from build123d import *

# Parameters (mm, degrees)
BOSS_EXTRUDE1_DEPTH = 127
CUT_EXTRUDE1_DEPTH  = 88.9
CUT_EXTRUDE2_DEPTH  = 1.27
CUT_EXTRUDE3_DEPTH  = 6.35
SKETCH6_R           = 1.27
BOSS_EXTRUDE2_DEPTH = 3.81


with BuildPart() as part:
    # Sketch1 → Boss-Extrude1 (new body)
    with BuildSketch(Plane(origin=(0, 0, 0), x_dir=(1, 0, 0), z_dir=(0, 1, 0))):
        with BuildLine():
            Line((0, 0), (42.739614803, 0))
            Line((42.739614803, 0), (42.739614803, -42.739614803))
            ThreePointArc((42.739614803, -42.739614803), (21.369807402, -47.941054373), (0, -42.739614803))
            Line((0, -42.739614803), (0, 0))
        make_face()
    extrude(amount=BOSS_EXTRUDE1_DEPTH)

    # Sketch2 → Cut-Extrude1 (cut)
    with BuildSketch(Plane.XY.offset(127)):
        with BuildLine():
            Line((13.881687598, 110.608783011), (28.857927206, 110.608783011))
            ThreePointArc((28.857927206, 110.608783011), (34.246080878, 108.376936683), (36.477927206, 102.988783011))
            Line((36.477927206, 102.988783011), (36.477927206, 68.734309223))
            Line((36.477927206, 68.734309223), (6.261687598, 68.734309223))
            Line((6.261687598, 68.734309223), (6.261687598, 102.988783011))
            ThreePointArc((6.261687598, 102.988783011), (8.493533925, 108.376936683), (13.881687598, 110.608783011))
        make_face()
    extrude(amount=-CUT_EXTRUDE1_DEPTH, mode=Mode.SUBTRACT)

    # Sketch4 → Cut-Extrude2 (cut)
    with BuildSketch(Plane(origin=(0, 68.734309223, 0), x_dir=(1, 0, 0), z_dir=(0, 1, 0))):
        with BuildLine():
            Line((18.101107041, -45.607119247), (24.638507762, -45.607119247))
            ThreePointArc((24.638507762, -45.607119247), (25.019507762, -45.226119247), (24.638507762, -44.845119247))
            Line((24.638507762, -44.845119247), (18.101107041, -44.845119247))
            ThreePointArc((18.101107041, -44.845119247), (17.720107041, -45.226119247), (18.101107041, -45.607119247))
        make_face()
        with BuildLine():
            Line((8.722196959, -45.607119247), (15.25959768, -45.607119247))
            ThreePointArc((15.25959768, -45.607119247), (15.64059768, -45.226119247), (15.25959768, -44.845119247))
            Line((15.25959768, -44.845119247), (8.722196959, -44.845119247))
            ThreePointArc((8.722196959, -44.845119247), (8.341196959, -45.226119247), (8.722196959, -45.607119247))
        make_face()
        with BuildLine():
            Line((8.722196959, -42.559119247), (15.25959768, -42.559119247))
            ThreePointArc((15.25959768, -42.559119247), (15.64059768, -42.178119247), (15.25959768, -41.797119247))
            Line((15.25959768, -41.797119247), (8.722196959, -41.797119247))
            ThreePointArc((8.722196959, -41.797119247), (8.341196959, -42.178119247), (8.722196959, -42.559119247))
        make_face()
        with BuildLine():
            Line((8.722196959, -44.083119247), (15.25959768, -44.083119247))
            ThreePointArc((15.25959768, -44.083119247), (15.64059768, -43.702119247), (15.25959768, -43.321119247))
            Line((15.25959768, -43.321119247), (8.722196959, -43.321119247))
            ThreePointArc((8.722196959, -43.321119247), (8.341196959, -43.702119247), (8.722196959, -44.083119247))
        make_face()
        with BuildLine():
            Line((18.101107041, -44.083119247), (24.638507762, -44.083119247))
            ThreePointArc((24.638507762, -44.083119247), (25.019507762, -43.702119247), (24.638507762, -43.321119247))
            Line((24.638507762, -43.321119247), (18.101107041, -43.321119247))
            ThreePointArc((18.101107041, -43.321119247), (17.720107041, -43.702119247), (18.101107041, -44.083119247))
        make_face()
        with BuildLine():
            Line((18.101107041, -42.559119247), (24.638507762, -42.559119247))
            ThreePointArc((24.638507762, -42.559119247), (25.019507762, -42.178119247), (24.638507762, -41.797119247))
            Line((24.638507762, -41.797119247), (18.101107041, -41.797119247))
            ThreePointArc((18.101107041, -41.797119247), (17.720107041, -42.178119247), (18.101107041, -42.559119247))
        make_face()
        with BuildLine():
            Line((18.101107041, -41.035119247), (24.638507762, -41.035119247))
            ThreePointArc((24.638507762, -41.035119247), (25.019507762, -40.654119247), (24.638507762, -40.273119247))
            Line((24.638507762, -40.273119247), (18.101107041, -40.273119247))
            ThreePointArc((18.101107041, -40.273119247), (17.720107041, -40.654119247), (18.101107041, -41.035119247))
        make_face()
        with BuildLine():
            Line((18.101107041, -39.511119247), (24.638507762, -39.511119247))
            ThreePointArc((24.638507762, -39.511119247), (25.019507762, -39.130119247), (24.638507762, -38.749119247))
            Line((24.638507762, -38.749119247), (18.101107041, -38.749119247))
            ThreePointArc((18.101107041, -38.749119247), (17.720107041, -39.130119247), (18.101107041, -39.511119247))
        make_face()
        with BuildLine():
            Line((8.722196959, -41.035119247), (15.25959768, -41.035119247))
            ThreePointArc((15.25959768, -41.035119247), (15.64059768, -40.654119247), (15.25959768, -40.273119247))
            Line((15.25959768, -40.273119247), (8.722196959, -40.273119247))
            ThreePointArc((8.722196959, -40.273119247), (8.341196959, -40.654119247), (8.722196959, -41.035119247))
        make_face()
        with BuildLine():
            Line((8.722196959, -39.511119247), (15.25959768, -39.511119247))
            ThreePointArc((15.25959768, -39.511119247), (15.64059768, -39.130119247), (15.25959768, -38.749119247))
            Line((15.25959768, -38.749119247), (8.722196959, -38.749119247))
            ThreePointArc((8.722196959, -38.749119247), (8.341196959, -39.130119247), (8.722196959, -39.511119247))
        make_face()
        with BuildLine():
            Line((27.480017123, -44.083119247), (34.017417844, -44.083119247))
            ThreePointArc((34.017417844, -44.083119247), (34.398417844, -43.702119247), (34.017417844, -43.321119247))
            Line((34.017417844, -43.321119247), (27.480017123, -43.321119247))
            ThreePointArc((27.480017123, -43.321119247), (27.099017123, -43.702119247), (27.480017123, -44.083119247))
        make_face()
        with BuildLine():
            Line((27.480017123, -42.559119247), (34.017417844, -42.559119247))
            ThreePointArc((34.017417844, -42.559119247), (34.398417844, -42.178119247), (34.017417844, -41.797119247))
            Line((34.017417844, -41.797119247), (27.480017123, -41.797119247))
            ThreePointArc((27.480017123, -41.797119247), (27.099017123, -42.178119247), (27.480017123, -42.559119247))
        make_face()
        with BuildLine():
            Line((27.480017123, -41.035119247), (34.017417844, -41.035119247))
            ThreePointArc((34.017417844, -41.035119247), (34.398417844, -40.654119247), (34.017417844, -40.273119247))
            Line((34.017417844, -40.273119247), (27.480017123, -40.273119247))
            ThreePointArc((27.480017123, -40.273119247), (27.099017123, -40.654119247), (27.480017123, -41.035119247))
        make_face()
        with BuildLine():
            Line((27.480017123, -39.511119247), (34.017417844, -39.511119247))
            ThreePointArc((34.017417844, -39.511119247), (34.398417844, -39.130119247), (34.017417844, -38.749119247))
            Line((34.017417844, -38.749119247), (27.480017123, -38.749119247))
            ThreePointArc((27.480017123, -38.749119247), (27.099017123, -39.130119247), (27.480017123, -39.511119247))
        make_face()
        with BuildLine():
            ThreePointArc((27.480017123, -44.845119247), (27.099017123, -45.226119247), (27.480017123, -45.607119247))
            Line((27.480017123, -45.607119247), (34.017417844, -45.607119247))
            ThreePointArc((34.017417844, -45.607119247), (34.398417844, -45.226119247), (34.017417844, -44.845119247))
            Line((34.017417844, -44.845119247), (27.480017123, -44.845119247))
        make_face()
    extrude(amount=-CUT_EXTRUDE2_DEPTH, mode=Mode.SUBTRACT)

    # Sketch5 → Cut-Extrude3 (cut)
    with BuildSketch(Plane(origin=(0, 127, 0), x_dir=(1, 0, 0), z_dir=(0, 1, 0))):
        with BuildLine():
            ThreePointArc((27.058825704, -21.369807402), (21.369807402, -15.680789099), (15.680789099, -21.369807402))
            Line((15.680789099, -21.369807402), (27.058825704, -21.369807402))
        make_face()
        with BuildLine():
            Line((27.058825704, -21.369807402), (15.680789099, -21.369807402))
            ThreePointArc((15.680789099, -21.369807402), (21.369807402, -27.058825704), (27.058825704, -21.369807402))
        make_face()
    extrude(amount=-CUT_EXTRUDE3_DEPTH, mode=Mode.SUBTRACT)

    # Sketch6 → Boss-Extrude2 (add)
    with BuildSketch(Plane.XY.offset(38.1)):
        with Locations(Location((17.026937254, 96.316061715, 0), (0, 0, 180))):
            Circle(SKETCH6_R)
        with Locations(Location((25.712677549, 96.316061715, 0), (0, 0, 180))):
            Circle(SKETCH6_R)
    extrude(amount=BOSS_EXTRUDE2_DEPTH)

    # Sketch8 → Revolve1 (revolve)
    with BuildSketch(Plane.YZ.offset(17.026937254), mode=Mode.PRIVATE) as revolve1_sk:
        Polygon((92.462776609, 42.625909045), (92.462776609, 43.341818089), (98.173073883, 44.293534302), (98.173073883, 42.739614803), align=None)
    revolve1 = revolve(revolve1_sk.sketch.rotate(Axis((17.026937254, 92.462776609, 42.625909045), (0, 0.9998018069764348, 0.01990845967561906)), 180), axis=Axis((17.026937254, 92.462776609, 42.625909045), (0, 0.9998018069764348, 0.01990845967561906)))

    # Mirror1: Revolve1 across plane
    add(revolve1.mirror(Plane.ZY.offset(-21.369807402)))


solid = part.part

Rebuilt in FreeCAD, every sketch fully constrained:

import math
import FreeCAD as App
import Part
import Sketcher

V = App.Vector
Q = App.Units.Quantity

doc = App.newDocument("Part")
body = doc.addObject("PartDesign::Body", "Body")

sketch1 = doc.addObject("Sketcher::SketchObject", "Sketch")
body.addObject(sketch1)
sketch1.AttachmentSupport = (doc.XZ_Plane, [""])
sketch1.MapMode = "FlatFace"
sketch1.addGeometry(Part.LineSegment(V(43, 0, 0), V(0, 0, 0)), False)
sketch1.addGeometry(Part.LineSegment(V(0, 0, 0), V(0, 43, 0)), False)
sketch1.addGeometry(Part.ArcOfCircle(Part.Circle(V(21, 1, 0), V(0, 0, 1), 46), math.radians(63), math.radians(117)), False)
sketch1.addGeometry(Part.LineSegment(V(43, 43, 0), V(43, 0, 0)), False)
sketch1.addConstraint(Sketcher.Constraint("Coincident", 0, 2, 1, 1))
sketch1.addConstraint(Sketcher.Constraint("Coincident", 1, 2, 2, 2))
sketch1.addConstraint(Sketcher.Constraint("Coincident", 2, 1, 3, 1))
sketch1.addConstraint(Sketcher.Constraint("Coincident", 3, 2, 0, 1))
sketch1.addConstraint(Sketcher.Constraint("Horizontal", 0))
sketch1.addConstraint(Sketcher.Constraint("Vertical", 1))
sketch1.addConstraint(Sketcher.Constraint("Vertical", 3))
sketch1.addConstraint(Sketcher.Constraint("Coincident", 0, 2, -1, 1))
sketch1.addConstraint(Sketcher.Constraint("Horizontal", 1, 2, 2, 1))
sketch1.addConstraint(Sketcher.Constraint("Equal", 0, 1))
sketch1.addConstraint(Sketcher.Constraint("Radius", 2, 46.499016))
sketch1.addConstraint(Sketcher.Constraint("DistanceX", 0, 2, 0, 1, 42.739615))
pad1 = doc.addObject("PartDesign::Pad", "Pad")
body.addObject(pad1)
pad1.Profile = sketch1
pad1.Length = Q("5 in")
pad1.Reversed = True

sketch2 = doc.addObject("Sketcher::SketchObject", "Sketch001")
body.addObject(sketch2)
sketch2.AttachmentSupport = (doc.XY_Plane, [""])
sketch2.MapMode = "FlatFace"
sketch2.AttachmentOffset = App.Placement(V(0, 0, 5 * 25.4), App.Rotation())
sketch2.addGeometry(Part.LineSegment(V(29, 111, 0), V(14, 111, 0)), False)
sketch2.addGeometry(Part.ArcOfCircle(Part.Circle(V(14, 103, 0), V(0, 0, 1), 8), math.radians(90), math.radians(180)), False)
sketch2.addGeometry(Part.LineSegment(V(6, 103, 0), V(6, 69, 0)), False)
sketch2.addGeometry(Part.LineSegment(V(6, 69, 0), V(36, 69, 0)), False)
sketch2.addGeometry(Part.LineSegment(V(36, 69, 0), V(36, 103, 0)), False)
sketch2.addGeometry(Part.ArcOfCircle(Part.Circle(V(29, 103, 0), V(0, 0, 1), 8), math.radians(0), math.radians(90)), False)
sketch2.addConstraint(Sketcher.Constraint("Tangent", 0, 2, 1, 1))
sketch2.addConstraint(Sketcher.Constraint("Tangent", 1, 2, 2, 1))
sketch2.addConstraint(Sketcher.Constraint("Coincident", 2, 2, 3, 1))
sketch2.addConstraint(Sketcher.Constraint("Coincident", 3, 2, 4, 1))
sketch2.addConstraint(Sketcher.Constraint("Tangent", 4, 2, 5, 1))
sketch2.addConstraint(Sketcher.Constraint("Tangent", 5, 2, 0, 1))
sketch2.addConstraint(Sketcher.Constraint("Horizontal", 0))
sketch2.addConstraint(Sketcher.Constraint("Vertical", 2))
sketch2.addConstraint(Sketcher.Constraint("Horizontal", 3))
sketch2.addConstraint(Sketcher.Constraint("Vertical", 4))
sketch2.addConstraint(Sketcher.Constraint("Equal", 1, 5))
sketch2.addConstraint(Sketcher.Constraint("Radius", 1, Q("0.3 in")))
sketch2.addConstraint(Sketcher.Constraint("DistanceX", 0, 2, 0, 1, 14.97624))
sketch2.addConstraint(Sketcher.Constraint("DistanceY", 2, 2, 2, 1, 34.254474))
sketch2.addConstraint(Sketcher.Constraint("DistanceY", -1, 1, 2, 2, 68.734309))
sketch2.addConstraint(Sketcher.Constraint("DistanceX", -1, 1, 1, 3, 13.881688))
pocket1 = doc.addObject("PartDesign::Pocket", "Pocket")
body.addObject(pocket1)
pocket1.Profile = sketch2
pocket1.Length = Q("3.5 in")

sketch3 = doc.addObject("Sketcher::SketchObject", "Sketch002")
body.addObject(sketch3)
sketch3.AttachmentSupport = (doc.XZ_Plane, [""])
sketch3.MapMode = "FlatFace"
sketch3.AttachmentOffset = App.Placement(V(0, 0, -68.734309), App.Rotation())
sketch3.addGeometry(Part.LineSegment(V(18.1, 45.61, 0), V(24.64, 45.61, 0)), False)
sketch3.addGeometry(Part.ArcOfCircle(Part.Circle(V(24.64, 45.23, 0), V(0, 0, 1), 0.38), math.radians(-90), math.radians(90)), False)
sketch3.addGeometry(Part.LineSegment(V(24.64, 44.85, 0), V(18.1, 44.85, 0)), False)
sketch3.addGeometry(Part.ArcOfCircle(Part.Circle(V(18.1, 45.23, 0), V(0, 0, 1), 0.38), math.radians(90), math.radians(270)), False)
sketch3.addGeometry(Part.LineSegment(V(8.72, 45.61, 0), V(15.26, 45.61, 0)), False)
sketch3.addGeometry(Part.ArcOfCircle(Part.Circle(V(15.26, 45.23, 0), V(0, 0, 1), 0.38), math.radians(-90), math.radians(90)), False)
sketch3.addGeometry(Part.LineSegment(V(15.26, 44.85, 0), V(8.72, 44.85, 0)), False)
sketch3.addGeometry(Part.ArcOfCircle(Part.Circle(V(8.72, 45.23, 0), V(0, 0, 1), 0.38), math.radians(90), math.radians(270)), False)
sketch3.addGeometry(Part.LineSegment(V(8.72, 42.56, 0), V(15.26, 42.56, 0)), False)
sketch3.addGeometry(Part.ArcOfCircle(Part.Circle(V(15.26, 42.18, 0), V(0, 0, 1), 0.38), math.radians(-90), math.radians(90)), False)
sketch3.addGeometry(Part.LineSegment(V(15.26, 41.8, 0), V(8.72, 41.8, 0)), False)
sketch3.addGeometry(Part.ArcOfCircle(Part.Circle(V(8.72, 42.18, 0), V(0, 0, 1), 0.38), math.radians(90), math.radians(270)), False)
sketch3.addGeometry(Part.LineSegment(V(8.72, 44.08, 0), V(15.26, 44.08, 0)), False)
sketch3.addGeometry(Part.ArcOfCircle(Part.Circle(V(15.26, 43.7, 0), V(0, 0, 1), 0.38), math.radians(-90), math.radians(90)), False)
sketch3.addGeometry(Part.LineSegment(V(15.26, 43.32, 0), V(8.72, 43.32, 0)), False)
sketch3.addGeometry(Part.ArcOfCircle(Part.Circle(V(8.72, 43.7, 0), V(0, 0, 1), 0.38), math.radians(90), math.radians(270)), False)
sketch3.addGeometry(Part.LineSegment(V(18.1, 44.08, 0), V(24.64, 44.08, 0)), False)
sketch3.addGeometry(Part.ArcOfCircle(Part.Circle(V(24.64, 43.7, 0), V(0, 0, 1), 0.38), math.radians(-90), math.radians(90)), False)
sketch3.addGeometry(Part.LineSegment(V(24.64, 43.32, 0), V(18.1, 43.32, 0)), False)
sketch3.addGeometry(Part.ArcOfCircle(Part.Circle(V(18.1, 43.7, 0), V(0, 0, 1), 0.38), math.radians(90), math.radians(270)), False)
sketch3.addGeometry(Part.LineSegment(V(18.1, 42.56, 0), V(24.64, 42.56, 0)), False)
sketch3.addGeometry(Part.ArcOfCircle(Part.Circle(V(24.64, 42.18, 0), V(0, 0, 1), 0.38), math.radians(-90), math.radians(90)), False)
sketch3.addGeometry(Part.LineSegment(V(24.64, 41.8, 0), V(18.1, 41.8, 0)), False)
sketch3.addGeometry(Part.ArcOfCircle(Part.Circle(V(18.1, 42.18, 0), V(0, 0, 1), 0.38), math.radians(90), math.radians(270)), False)
sketch3.addGeometry(Part.LineSegment(V(18.1, 41.04, 0), V(24.64, 41.04, 0)), False)
sketch3.addGeometry(Part.ArcOfCircle(Part.Circle(V(24.64, 40.65, 0), V(0, 0, 1), 0.38), math.radians(-90), math.radians(90)), False)
sketch3.addGeometry(Part.LineSegment(V(24.64, 40.27, 0), V(18.1, 40.27, 0)), False)
sketch3.addGeometry(Part.ArcOfCircle(Part.Circle(V(18.1, 40.65, 0), V(0, 0, 1), 0.38), math.radians(90), math.radians(270)), False)
sketch3.addGeometry(Part.LineSegment(V(18.1, 39.51, 0), V(24.64, 39.51, 0)), False)
sketch3.addGeometry(Part.ArcOfCircle(Part.Circle(V(24.64, 39.13, 0), V(0, 0, 1), 0.38), math.radians(-90), math.radians(90)), False)
sketch3.addGeometry(Part.LineSegment(V(24.64, 38.75, 0), V(18.1, 38.75, 0)), False)
sketch3.addGeometry(Part.ArcOfCircle(Part.Circle(V(18.1, 39.13, 0), V(0, 0, 1), 0.38), math.radians(90), math.radians(270)), False)
sketch3.addGeometry(Part.LineSegment(V(8.72, 41.04, 0), V(15.26, 41.04, 0)), False)
sketch3.addGeometry(Part.ArcOfCircle(Part.Circle(V(15.26, 40.65, 0), V(0, 0, 1), 0.38), math.radians(-90), math.radians(90)), False)
sketch3.addGeometry(Part.LineSegment(V(15.26, 40.27, 0), V(8.72, 40.27, 0)), False)
sketch3.addGeometry(Part.ArcOfCircle(Part.Circle(V(8.72, 40.65, 0), V(0, 0, 1), 0.38), math.radians(90), math.radians(270)), False)
sketch3.addGeometry(Part.LineSegment(V(8.72, 39.51, 0), V(15.26, 39.51, 0)), False)
sketch3.addGeometry(Part.ArcOfCircle(Part.Circle(V(15.26, 39.13, 0), V(0, 0, 1), 0.38), math.radians(-90), math.radians(90)), False)
sketch3.addGeometry(Part.LineSegment(V(15.26, 38.75, 0), V(8.72, 38.75, 0)), False)
sketch3.addGeometry(Part.ArcOfCircle(Part.Circle(V(8.72, 39.13, 0), V(0, 0, 1), 0.38), math.radians(90), math.radians(270)), False)
sketch3.addGeometry(Part.LineSegment(V(27.48, 44.08, 0), V(34.02, 44.08, 0)), False)
sketch3.addGeometry(Part.ArcOfCircle(Part.Circle(V(34.02, 43.7, 0), V(0, 0, 1), 0.38), math.radians(-90), math.radians(90)), False)
sketch3.addGeometry(Part.LineSegment(V(34.02, 43.32, 0), V(27.48, 43.32, 0)), False)
sketch3.addGeometry(Part.ArcOfCircle(Part.Circle(V(27.48, 43.7, 0), V(0, 0, 1), 0.38), math.radians(90), math.radians(270)), False)
sketch3.addGeometry(Part.LineSegment(V(27.48, 42.56, 0), V(34.02, 42.56, 0)), False)
sketch3.addGeometry(Part.ArcOfCircle(Part.Circle(V(34.02, 42.18, 0), V(0, 0, 1), 0.38), math.radians(-90), math.radians(90)), False)
sketch3.addGeometry(Part.LineSegment(V(34.02, 41.8, 0), V(27.48, 41.8, 0)), False)
sketch3.addGeometry(Part.ArcOfCircle(Part.Circle(V(27.48, 42.18, 0), V(0, 0, 1), 0.38), math.radians(90), math.radians(270)), False)
sketch3.addGeometry(Part.LineSegment(V(27.48, 41.04, 0), V(34.02, 41.04, 0)), False)
sketch3.addGeometry(Part.ArcOfCircle(Part.Circle(V(34.02, 40.65, 0), V(0, 0, 1), 0.38), math.radians(-90), math.radians(90)), False)
sketch3.addGeometry(Part.LineSegment(V(34.02, 40.27, 0), V(27.48, 40.27, 0)), False)
sketch3.addGeometry(Part.ArcOfCircle(Part.Circle(V(27.48, 40.65, 0), V(0, 0, 1), 0.38), math.radians(90), math.radians(270)), False)
sketch3.addGeometry(Part.LineSegment(V(27.48, 39.51, 0), V(34.02, 39.51, 0)), False)
sketch3.addGeometry(Part.ArcOfCircle(Part.Circle(V(34.02, 39.13, 0), V(0, 0, 1), 0.38), math.radians(-90), math.radians(90)), False)
sketch3.addGeometry(Part.LineSegment(V(34.02, 38.75, 0), V(27.48, 38.75, 0)), False)
sketch3.addGeometry(Part.ArcOfCircle(Part.Circle(V(27.48, 39.13, 0), V(0, 0, 1), 0.38), math.radians(90), math.radians(270)), False)
sketch3.addGeometry(Part.ArcOfCircle(Part.Circle(V(27.48, 45.23, 0), V(0, 0, 1), 0.38), math.radians(90), math.radians(270)), False)
sketch3.addGeometry(Part.LineSegment(V(27.48, 45.61, 0), V(34.02, 45.61, 0)), False)
sketch3.addGeometry(Part.ArcOfCircle(Part.Circle(V(34.02, 45.23, 0), V(0, 0, 1), 0.38), math.radians(-90), math.radians(90)), False)
sketch3.addGeometry(Part.LineSegment(V(34.02, 44.85, 0), V(27.48, 44.85, 0)), False)
sketch3.addConstraint(Sketcher.Constraint("Tangent", 0, 2, 1, 2))
sketch3.addConstraint(Sketcher.Constraint("Tangent", 1, 1, 2, 1))
sketch3.addConstraint(Sketcher.Constraint("Tangent", 2, 2, 3, 2))
sketch3.addConstraint(Sketcher.Constraint("Tangent", 3, 1, 0, 1))
sketch3.addConstraint(Sketcher.Constraint("Tangent", 4, 2, 5, 2))
sketch3.addConstraint(Sketcher.Constraint("Tangent", 5, 1, 6, 1))
sketch3.addConstraint(Sketcher.Constraint("Tangent", 6, 2, 7, 2))
sketch3.addConstraint(Sketcher.Constraint("Tangent", 7, 1, 4, 1))
sketch3.addConstraint(Sketcher.Constraint("Tangent", 8, 2, 9, 2))
sketch3.addConstraint(Sketcher.Constraint("Tangent", 9, 1, 10, 1))
sketch3.addConstraint(Sketcher.Constraint("Tangent", 10, 2, 11, 2))
sketch3.addConstraint(Sketcher.Constraint("Tangent", 11, 1, 8, 1))
sketch3.addConstraint(Sketcher.Constraint("Tangent", 12, 2, 13, 2))
sketch3.addConstraint(Sketcher.Constraint("Tangent", 13, 1, 14, 1))
sketch3.addConstraint(Sketcher.Constraint("Tangent", 14, 2, 15, 2))
sketch3.addConstraint(Sketcher.Constraint("Tangent", 15, 1, 12, 1))
sketch3.addConstraint(Sketcher.Constraint("Tangent", 16, 2, 17, 2))
sketch3.addConstraint(Sketcher.Constraint("Tangent", 17, 1, 18, 1))
sketch3.addConstraint(Sketcher.Constraint("Tangent", 18, 2, 19, 2))
sketch3.addConstraint(Sketcher.Constraint("Tangent", 19, 1, 16, 1))
sketch3.addConstraint(Sketcher.Constraint("Tangent", 20, 2, 21, 2))
sketch3.addConstraint(Sketcher.Constraint("Tangent", 21, 1, 22, 1))
sketch3.addConstraint(Sketcher.Constraint("Tangent", 22, 2, 23, 2))
sketch3.addConstraint(Sketcher.Constraint("Tangent", 23, 1, 20, 1))
sketch3.addConstraint(Sketcher.Constraint("Tangent", 24, 2, 25, 2))
sketch3.addConstraint(Sketcher.Constraint("Tangent", 25, 1, 26, 1))
sketch3.addConstraint(Sketcher.Constraint("Tangent", 26, 2, 27, 2))
sketch3.addConstraint(Sketcher.Constraint("Tangent", 27, 1, 24, 1))
sketch3.addConstraint(Sketcher.Constraint("Tangent", 28, 2, 29, 2))
sketch3.addConstraint(Sketcher.Constraint("Tangent", 29, 1, 30, 1))
sketch3.addConstraint(Sketcher.Constraint("Tangent", 30, 2, 31, 2))
sketch3.addConstraint(Sketcher.Constraint("Tangent", 31, 1, 28, 1))
sketch3.addConstraint(Sketcher.Constraint("Tangent", 32, 2, 33, 2))
sketch3.addConstraint(Sketcher.Constraint("Tangent", 33, 1, 34, 1))
sketch3.addConstraint(Sketcher.Constraint("Tangent", 34, 2, 35, 2))
sketch3.addConstraint(Sketcher.Constraint("Tangent", 35, 1, 32, 1))
sketch3.addConstraint(Sketcher.Constraint("Tangent", 36, 2, 37, 2))
sketch3.addConstraint(Sketcher.Constraint("Tangent", 37, 1, 38, 1))
sketch3.addConstraint(Sketcher.Constraint("Tangent", 38, 2, 39, 2))
sketch3.addConstraint(Sketcher.Constraint("Tangent", 39, 1, 36, 1))
sketch3.addConstraint(Sketcher.Constraint("Tangent", 40, 2, 41, 2))
sketch3.addConstraint(Sketcher.Constraint("Tangent", 41, 1, 42, 1))
sketch3.addConstraint(Sketcher.Constraint("Tangent", 42, 2, 43, 2))
sketch3.addConstraint(Sketcher.Constraint("Tangent", 43, 1, 40, 1))
sketch3.addConstraint(Sketcher.Constraint("Tangent", 44, 2, 45, 2))
sketch3.addConstraint(Sketcher.Constraint("Tangent", 45, 1, 46, 1))
sketch3.addConstraint(Sketcher.Constraint("Tangent", 46, 2, 47, 2))
sketch3.addConstraint(Sketcher.Constraint("Tangent", 47, 1, 44, 1))
sketch3.addConstraint(Sketcher.Constraint("Tangent", 48, 2, 49, 2))
sketch3.addConstraint(Sketcher.Constraint("Tangent", 49, 1, 50, 1))
sketch3.addConstraint(Sketcher.Constraint("Tangent", 50, 2, 51, 2))
sketch3.addConstraint(Sketcher.Constraint("Tangent", 51, 1, 48, 1))
sketch3.addConstraint(Sketcher.Constraint("Tangent", 52, 2, 53, 2))
sketch3.addConstraint(Sketcher.Constraint("Tangent", 53, 1, 54, 1))
sketch3.addConstraint(Sketcher.Constraint("Tangent", 54, 2, 55, 2))
sketch3.addConstraint(Sketcher.Constraint("Tangent", 55, 1, 52, 1))
sketch3.addConstraint(Sketcher.Constraint("Tangent", 56, 1, 57, 1))
sketch3.addConstraint(Sketcher.Constraint("Tangent", 57, 2, 58, 2))
sketch3.addConstraint(Sketcher.Constraint("Tangent", 58, 1, 59, 1))
sketch3.addConstraint(Sketcher.Constraint("Tangent", 59, 2, 56, 2))
sketch3.addConstraint(Sketcher.Constraint("Horizontal", 0))
sketch3.addConstraint(Sketcher.Constraint("Horizontal", 2))
sketch3.addConstraint(Sketcher.Constraint("Horizontal", 4))
sketch3.addConstraint(Sketcher.Constraint("Horizontal", 6))
sketch3.addConstraint(Sketcher.Constraint("Horizontal", 8))
sketch3.addConstraint(Sketcher.Constraint("Horizontal", 10))
sketch3.addConstraint(Sketcher.Constraint("Horizontal", 12))
sketch3.addConstraint(Sketcher.Constraint("Horizontal", 14))
sketch3.addConstraint(Sketcher.Constraint("Horizontal", 16))
sketch3.addConstraint(Sketcher.Constraint("Horizontal", 18))
sketch3.addConstraint(Sketcher.Constraint("Horizontal", 20))
sketch3.addConstraint(Sketcher.Constraint("Horizontal", 22))
sketch3.addConstraint(Sketcher.Constraint("Horizontal", 24))
sketch3.addConstraint(Sketcher.Constraint("Horizontal", 26))
sketch3.addConstraint(Sketcher.Constraint("Horizontal", 28))
sketch3.addConstraint(Sketcher.Constraint("Horizontal", 30))
sketch3.addConstraint(Sketcher.Constraint("Horizontal", 32))
sketch3.addConstraint(Sketcher.Constraint("Horizontal", 34))
sketch3.addConstraint(Sketcher.Constraint("Horizontal", 36))
sketch3.addConstraint(Sketcher.Constraint("Horizontal", 38))
sketch3.addConstraint(Sketcher.Constraint("Horizontal", 40))
sketch3.addConstraint(Sketcher.Constraint("Horizontal", 42))
sketch3.addConstraint(Sketcher.Constraint("Horizontal", 44))
sketch3.addConstraint(Sketcher.Constraint("Horizontal", 46))
sketch3.addConstraint(Sketcher.Constraint("Horizontal", 48))
sketch3.addConstraint(Sketcher.Constraint("Horizontal", 50))
sketch3.addConstraint(Sketcher.Constraint("Horizontal", 52))
sketch3.addConstraint(Sketcher.Constraint("Horizontal", 54))
sketch3.addConstraint(Sketcher.Constraint("Horizontal", 57))
sketch3.addConstraint(Sketcher.Constraint("Horizontal", 59))
sketch3.addConstraint(Sketcher.Constraint("Equal", 3, 5))
sketch3.addConstraint(Sketcher.Constraint("Equal", 7, 9))
sketch3.addConstraint(Sketcher.Constraint("Equal", 11, 13))
sketch3.addConstraint(Sketcher.Constraint("Equal", 15, 17))
sketch3.addConstraint(Sketcher.Constraint("Equal", 19, 21))
sketch3.addConstraint(Sketcher.Constraint("Equal", 23, 25))
sketch3.addConstraint(Sketcher.Constraint("Equal", 27, 29))
sketch3.addConstraint(Sketcher.Constraint("Equal", 31, 33))
sketch3.addConstraint(Sketcher.Constraint("Equal", 35, 37))
sketch3.addConstraint(Sketcher.Constraint("Equal", 39, 41))
sketch3.addConstraint(Sketcher.Constraint("Equal", 43, 45))
sketch3.addConstraint(Sketcher.Constraint("Equal", 47, 49))
sketch3.addConstraint(Sketcher.Constraint("Equal", 51, 53))
sketch3.addConstraint(Sketcher.Constraint("Equal", 55, 56))
sketch3.addConstraint(Sketcher.Constraint("Horizontal", 3, 3, 5, 3))
sketch3.addConstraint(Sketcher.Constraint("Horizontal", 15, 3, 17, 3))
sketch3.addConstraint(Sketcher.Constraint("Horizontal", 11, 3, 21, 3))
sketch3.addConstraint(Sketcher.Constraint("Horizontal", 27, 3, 33, 3))
sketch3.addConstraint(Sketcher.Constraint("Horizontal", 31, 3, 37, 3))
sketch3.addConstraint(Sketcher.Constraint("Horizontal", 19, 3, 41, 3))
sketch3.addConstraint(Sketcher.Constraint("Horizontal", 23, 3, 45, 3))
sketch3.addConstraint(Sketcher.Constraint("Horizontal", 35, 3, 49, 3))
sketch3.addConstraint(Sketcher.Constraint("Horizontal", 39, 3, 53, 3))
sketch3.addConstraint(Sketcher.Constraint("Horizontal", 7, 3, 56, 3))
sketch3.addConstraint(Sketcher.Constraint("Vertical", 5, 3, 9, 3))
sketch3.addConstraint(Sketcher.Constraint("Vertical", 7, 3, 11, 3))
sketch3.addConstraint(Sketcher.Constraint("Vertical", 9, 3, 13, 3))
sketch3.addConstraint(Sketcher.Constraint("Vertical", 11, 3, 15, 3))
sketch3.addConstraint(Sketcher.Constraint("Vertical", 1, 3, 17, 3))
sketch3.addConstraint(Sketcher.Constraint("Vertical", 3, 3, 19, 3))
sketch3.addConstraint(Sketcher.Constraint("Vertical", 17, 3, 21, 3))
sketch3.addConstraint(Sketcher.Constraint("Vertical", 19, 3, 23, 3))
sketch3.addConstraint(Sketcher.Constraint("Vertical", 21, 3, 25, 3))
sketch3.addConstraint(Sketcher.Constraint("Vertical", 23, 3, 27, 3))
sketch3.addConstraint(Sketcher.Constraint("Vertical", 25, 3, 29, 3))
sketch3.addConstraint(Sketcher.Constraint("Vertical", 27, 3, 31, 3))
sketch3.addConstraint(Sketcher.Constraint("Vertical", 13, 3, 33, 3))
sketch3.addConstraint(Sketcher.Constraint("Vertical", 15, 3, 35, 3))
sketch3.addConstraint(Sketcher.Constraint("Vertical", 33, 3, 37, 3))
sketch3.addConstraint(Sketcher.Constraint("Vertical", 35, 3, 39, 3))
sketch3.addConstraint(Sketcher.Constraint("Vertical", 41, 3, 45, 3))
sketch3.addConstraint(Sketcher.Constraint("Vertical", 43, 3, 47, 3))
sketch3.addConstraint(Sketcher.Constraint("Vertical", 45, 3, 49, 3))
sketch3.addConstraint(Sketcher.Constraint("Vertical", 47, 3, 51, 3))
sketch3.addConstraint(Sketcher.Constraint("Vertical", 49, 3, 53, 3))
sketch3.addConstraint(Sketcher.Constraint("Vertical", 51, 3, 55, 3))
sketch3.addConstraint(Sketcher.Constraint("Vertical", 55, 3, 56, 3))
sketch3.addConstraint(Sketcher.Constraint("Vertical", 53, 3, 58, 3))
sketch3.addConstraint(Sketcher.Constraint("Equal", 2, 4))
sketch3.addConstraint(Sketcher.Constraint("Equal", 38, 40))
sketch3.addConstraint(Sketcher.Constraint("Radius", 1, Q("0.015 in")))
sketch3.addConstraint(Sketcher.Constraint("DistanceX", 0, 1, 0, 2, 6.537401))
sketch3.addConstraint(Sketcher.Constraint("DistanceY", -1, 1, 1, 3, 45.226119))
sketch3.addConstraint(Sketcher.Constraint("DistanceY", -1, 1, 9, 3, 42.178119))
sketch3.addConstraint(Sketcher.Constraint("DistanceY", -1, 1, 13, 3, 43.702119))
sketch3.addConstraint(Sketcher.Constraint("DistanceY", -1, 1, 25, 3, 40.654119))
sketch3.addConstraint(Sketcher.Constraint("DistanceY", -1, 1, 29, 3, 39.130119))
sketch3.addConstraint(Sketcher.Constraint("DistanceX", -1, 1, 1, 3, 24.638508))
sketch3.addConstraint(Sketcher.Constraint("DistanceX", -1, 1, 5, 3, 15.259598))
sketch3.addConstraint(Sketcher.Constraint("DistanceX", -1, 1, 41, 3, 34.017418))
pocket2 = doc.addObject("PartDesign::Pocket", "Pocket001")
body.addObject(pocket2)
pocket2.Profile = sketch3
pocket2.Length = Q("0.05 in")
pocket2.Reversed = True

sketch4 = doc.addObject("Sketcher::SketchObject", "Sketch003")
body.addObject(sketch4)
sketch4.AttachmentSupport = (doc.XZ_Plane, [""])
sketch4.MapMode = "FlatFace"
sketch4.AttachmentOffset = App.Placement(V(0, 0, -5 * 25.4), App.Rotation())
sketch4.addGeometry(Part.Circle(V(21, 21, 0), V(0, 0, 1), 6), False)
sketch4.addConstraint(Sketcher.Constraint("Diameter", 0, 11.378037))
sketch4.addConstraint(Sketcher.Constraint("DistanceX", -1, 1, 0, 3, 21.369807))
sketch4.addConstraint(Sketcher.Constraint("DistanceY", -1, 1, 0, 3, 21.369807))
pocket3 = doc.addObject("PartDesign::Pocket", "Pocket002")
body.addObject(pocket3)
pocket3.Profile = sketch4
pocket3.Length = Q("0.25 in")
pocket3.Reversed = True

sketch5 = doc.addObject("Sketcher::SketchObject", "Sketch004")
body.addObject(sketch5)
sketch5.AttachmentSupport = (doc.XY_Plane, [""])
sketch5.MapMode = "FlatFace"
sketch5.AttachmentOffset = App.Placement(V(0, 0, 1.5 * 25.4), App.Rotation())
sketch5.addGeometry(Part.Circle(V(17, 96.3, 0), V(0, 0, 1), 1.3), False)
sketch5.addGeometry(Part.Circle(V(25.7, 96.3, 0), V(0, 0, 1), 1.3), False)
sketch5.addConstraint(Sketcher.Constraint("Equal", 0, 1))
sketch5.addConstraint(Sketcher.Constraint("Horizontal", 0, 3, 1, 3))
sketch5.addConstraint(Sketcher.Constraint("Diameter", 0, Q("0.1 in")))
sketch5.addConstraint(Sketcher.Constraint("DistanceY", -1, 1, 0, 3, 96.316062))
sketch5.addConstraint(Sketcher.Constraint("DistanceX", 0, 3, 1, 3, 8.68574))
sketch5.addConstraint(Sketcher.Constraint("DistanceX", -1, 1, 0, 3, 17.026937))
pad2 = doc.addObject("PartDesign::Pad", "Pad001")
body.addObject(pad2)
pad2.Profile = sketch5
pad2.Length = Q("0.15 in")

sketch6 = doc.addObject("Sketcher::SketchObject", "Sketch005")
body.addObject(sketch6)
sketch6.AttachmentSupport = (doc.YZ_Plane, [""])
sketch6.MapMode = "FlatFace"
sketch6.AttachmentOffset = App.Placement(V(0, 0, 17.026937), App.Rotation())
sketch6.addGeometry(Part.LineSegment(V(92.5, 43.3, 0), V(92.5, 42.6, 0)), False)
sketch6.addGeometry(Part.LineSegment(V(92.5, 42.6, 0), V(98.2, 42.7, 0)), False)
sketch6.addGeometry(Part.LineSegment(V(98.2, 42.7, 0), V(98.2, 44.3, 0)), False)
sketch6.addGeometry(Part.LineSegment(V(98.2, 44.3, 0), V(92.5, 43.3, 0)), False)
sketch6.addGeometry(Part.LineSegment(V(92.5, 42.6, 0), V(98.2, 42.7, 0)), True)
sketch6.addConstraint(Sketcher.Constraint("Coincident", 0, 2, 1, 1))
sketch6.addConstraint(Sketcher.Constraint("Coincident", 1, 2, 2, 1))
sketch6.addConstraint(Sketcher.Constraint("Coincident", 2, 2, 3, 1))
sketch6.addConstraint(Sketcher.Constraint("Coincident", 3, 2, 0, 1))
sketch6.addConstraint(Sketcher.Constraint("Vertical", 0))
sketch6.addConstraint(Sketcher.Constraint("Vertical", 2))
sketch6.addConstraint(Sketcher.Constraint("Coincident", 4, 1, 0, 2))
sketch6.addConstraint(Sketcher.Constraint("Parallel", 1, 4))
sketch6.addConstraint(Sketcher.Constraint("DistanceY", 0, 2, 0, 1, 0.715909))
sketch6.addConstraint(Sketcher.Constraint("DistanceY", 2, 1, 2, 2, 1.553919))
sketch6.addConstraint(Sketcher.Constraint("Distance", 1, 5.711429))
sketch6.addConstraint(Sketcher.Constraint("DistanceY", -1, 1, 0, 2, 42.625909))
sketch6.addConstraint(Sketcher.Constraint("DistanceY", -1, 1, 4, 2, 42.740231))
sketch6.addConstraint(Sketcher.Constraint("DistanceX", 1, 2, 4, 2, 0.03093))
sketch6.addConstraint(Sketcher.Constraint("DistanceX", -1, 1, 0, 2, 92.462777))
revolution = doc.addObject("PartDesign::Revolution", "Revolution")
body.addObject(revolution)
revolution.Profile = sketch6
revolution.ReferenceAxis = (sketch6, ["Axis0"])
revolution.Angle = 360
doc.recompute()

datumplane = doc.addObject("PartDesign::Plane", "DatumPlane")
body.addObject(datumplane)
datumplane.AttachmentSupport = (doc.YZ_Plane, [""])
datumplane.MapMode = "FlatFace"
datumplane.AttachmentOffset = App.Placement(V(0, 0, 21.369807), App.Rotation())
mirrored = doc.addObject("PartDesign::Mirrored", "Mirrored")
body.addObject(mirrored)
mirrored.Originals = [revolution]
mirrored.MirrorPlane = (datumplane, [""])
body.Tip = mirrored

doc.recompute()
